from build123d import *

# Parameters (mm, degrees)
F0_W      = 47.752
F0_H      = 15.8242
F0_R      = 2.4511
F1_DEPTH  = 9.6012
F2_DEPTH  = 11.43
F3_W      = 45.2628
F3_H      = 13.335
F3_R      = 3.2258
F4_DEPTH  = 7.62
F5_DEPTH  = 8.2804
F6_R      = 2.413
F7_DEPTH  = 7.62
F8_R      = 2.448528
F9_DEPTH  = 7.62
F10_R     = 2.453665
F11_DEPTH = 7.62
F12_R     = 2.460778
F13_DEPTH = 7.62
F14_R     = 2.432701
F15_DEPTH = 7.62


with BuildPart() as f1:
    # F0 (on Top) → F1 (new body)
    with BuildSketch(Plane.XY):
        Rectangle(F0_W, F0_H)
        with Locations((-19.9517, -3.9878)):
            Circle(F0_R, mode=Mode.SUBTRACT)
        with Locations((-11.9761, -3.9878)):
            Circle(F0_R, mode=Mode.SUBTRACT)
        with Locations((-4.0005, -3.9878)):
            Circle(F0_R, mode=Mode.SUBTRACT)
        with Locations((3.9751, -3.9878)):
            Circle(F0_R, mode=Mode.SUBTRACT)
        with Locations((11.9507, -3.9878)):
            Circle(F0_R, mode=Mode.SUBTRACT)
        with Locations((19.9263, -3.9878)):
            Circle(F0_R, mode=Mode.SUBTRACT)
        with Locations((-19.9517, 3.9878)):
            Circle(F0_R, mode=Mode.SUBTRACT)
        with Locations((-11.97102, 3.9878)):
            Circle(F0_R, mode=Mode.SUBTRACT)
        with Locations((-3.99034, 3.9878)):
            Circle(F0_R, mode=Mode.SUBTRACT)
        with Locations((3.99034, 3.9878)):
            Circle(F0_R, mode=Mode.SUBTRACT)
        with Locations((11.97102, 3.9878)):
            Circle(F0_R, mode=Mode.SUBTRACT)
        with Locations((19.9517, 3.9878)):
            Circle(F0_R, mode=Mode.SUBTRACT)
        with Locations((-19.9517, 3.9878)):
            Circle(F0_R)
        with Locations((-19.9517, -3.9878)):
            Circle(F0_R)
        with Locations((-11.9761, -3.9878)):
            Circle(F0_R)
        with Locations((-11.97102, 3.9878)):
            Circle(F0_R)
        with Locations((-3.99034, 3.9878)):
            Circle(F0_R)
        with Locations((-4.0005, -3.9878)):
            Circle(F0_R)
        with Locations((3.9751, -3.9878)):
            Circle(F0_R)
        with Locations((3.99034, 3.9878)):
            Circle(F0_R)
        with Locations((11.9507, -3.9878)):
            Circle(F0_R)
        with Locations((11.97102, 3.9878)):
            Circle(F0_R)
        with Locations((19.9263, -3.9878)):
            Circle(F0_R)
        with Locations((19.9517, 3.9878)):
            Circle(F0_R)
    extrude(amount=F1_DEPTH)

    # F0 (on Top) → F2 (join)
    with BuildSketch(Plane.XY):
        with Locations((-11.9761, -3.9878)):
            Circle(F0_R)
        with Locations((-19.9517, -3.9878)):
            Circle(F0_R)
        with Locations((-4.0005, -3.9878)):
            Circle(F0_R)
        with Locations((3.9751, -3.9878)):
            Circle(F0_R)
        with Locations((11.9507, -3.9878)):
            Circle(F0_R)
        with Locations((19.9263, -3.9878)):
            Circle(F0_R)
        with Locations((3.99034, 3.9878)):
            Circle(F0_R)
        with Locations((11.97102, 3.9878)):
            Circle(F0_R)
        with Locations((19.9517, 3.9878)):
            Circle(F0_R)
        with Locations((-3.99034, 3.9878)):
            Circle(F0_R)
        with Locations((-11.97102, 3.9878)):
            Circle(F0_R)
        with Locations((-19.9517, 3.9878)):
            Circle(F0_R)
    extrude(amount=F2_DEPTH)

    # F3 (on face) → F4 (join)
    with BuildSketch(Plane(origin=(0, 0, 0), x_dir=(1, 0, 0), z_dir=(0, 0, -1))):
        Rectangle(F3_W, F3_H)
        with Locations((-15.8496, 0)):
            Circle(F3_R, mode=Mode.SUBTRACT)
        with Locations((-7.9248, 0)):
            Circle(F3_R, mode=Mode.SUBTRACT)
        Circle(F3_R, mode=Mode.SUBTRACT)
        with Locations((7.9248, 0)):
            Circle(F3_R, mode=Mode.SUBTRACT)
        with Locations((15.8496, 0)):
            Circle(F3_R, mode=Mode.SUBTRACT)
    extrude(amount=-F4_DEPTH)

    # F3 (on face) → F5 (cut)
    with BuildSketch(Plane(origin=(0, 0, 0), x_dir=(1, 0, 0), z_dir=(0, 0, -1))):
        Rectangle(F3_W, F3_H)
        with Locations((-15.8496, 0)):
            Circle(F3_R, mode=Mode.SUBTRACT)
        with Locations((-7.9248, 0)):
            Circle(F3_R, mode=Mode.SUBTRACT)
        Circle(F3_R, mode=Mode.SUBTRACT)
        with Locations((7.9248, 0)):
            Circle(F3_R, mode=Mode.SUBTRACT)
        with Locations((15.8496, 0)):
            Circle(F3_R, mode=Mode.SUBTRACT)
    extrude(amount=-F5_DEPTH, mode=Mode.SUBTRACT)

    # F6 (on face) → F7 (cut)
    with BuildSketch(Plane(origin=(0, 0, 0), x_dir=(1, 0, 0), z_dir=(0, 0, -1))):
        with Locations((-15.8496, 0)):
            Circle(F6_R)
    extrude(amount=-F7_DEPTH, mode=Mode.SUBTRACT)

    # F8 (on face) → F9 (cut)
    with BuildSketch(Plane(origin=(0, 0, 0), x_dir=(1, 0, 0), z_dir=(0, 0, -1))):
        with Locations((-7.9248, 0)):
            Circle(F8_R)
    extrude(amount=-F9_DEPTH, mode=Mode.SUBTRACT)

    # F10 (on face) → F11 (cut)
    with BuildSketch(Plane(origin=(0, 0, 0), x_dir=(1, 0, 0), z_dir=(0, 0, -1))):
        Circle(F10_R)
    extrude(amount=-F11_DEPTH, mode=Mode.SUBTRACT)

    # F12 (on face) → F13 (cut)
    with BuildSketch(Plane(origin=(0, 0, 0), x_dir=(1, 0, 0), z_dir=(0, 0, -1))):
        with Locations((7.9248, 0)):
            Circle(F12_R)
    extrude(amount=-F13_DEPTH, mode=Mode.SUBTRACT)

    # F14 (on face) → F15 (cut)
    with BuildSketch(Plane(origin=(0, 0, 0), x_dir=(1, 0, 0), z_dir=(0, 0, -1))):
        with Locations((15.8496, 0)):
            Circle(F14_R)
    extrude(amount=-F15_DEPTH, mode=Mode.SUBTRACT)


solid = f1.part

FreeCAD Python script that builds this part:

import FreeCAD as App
import Part
import Sketcher
Q = App.Units.Quantity

doc = App.newDocument("Part")
body = doc.addObject("PartDesign::Body", "Body")

sketch1 = body.newObject("Sketcher::SketchObject", "Sketch")
sketch1.AttachmentSupport = (doc.getObject("XY_Plane"), [""])
sketch1.MapMode = "FlatFace"
sketch1.addGeometry(Part.LineSegment(App.Vector(-24, 8, 0), App.Vector(-24, -8, 0)), False)
sketch1.addGeometry(Part.LineSegment(App.Vector(-24, -8, 0), App.Vector(24, -8, 0)), False)
sketch1.addGeometry(Part.LineSegment(App.Vector(24, -8, 0), App.Vector(24, 8, 0)), False)
sketch1.addGeometry(Part.LineSegment(App.Vector(24, 8, 0), App.Vector(-24, 8, 0)), False)
sketch1.addConstraint(Sketcher.Constraint("Coincident", 0, 2, 1, 1))
sketch1.addConstraint(Sketcher.Constraint("Coincident", 1, 2, 2, 1))
sketch1.addConstraint(Sketcher.Constraint("Coincident", 2, 2, 3, 1))
sketch1.addConstraint(Sketcher.Constraint("Coincident", 3, 2, 0, 1))
sketch1.addConstraint(Sketcher.Constraint("Vertical", 0))
sketch1.addConstraint(Sketcher.Constraint("Horizontal", 1))
sketch1.addConstraint(Sketcher.Constraint("Vertical", 2))
sketch1.addConstraint(Sketcher.Constraint("Horizontal", 3))
sketch1.addConstraint(Sketcher.Constraint("Symmetric", 0, 2, 2, 2, -1, 1))
sketch1.addConstraint(Sketcher.Constraint("DistanceX", 1, 1, 1, 2, Q("1.88 in")))
sketch1.addConstraint(Sketcher.Constraint("DistanceY", 0, 2, 0, 1, Q("0.623 in")))
pad1 = body.newObject("PartDesign::Pad", "Pad")
pad1.Profile = sketch1
pad1.Length = Q("0.378 in")

sketch2 = body.newObject("Sketcher::SketchObject", "Sketch001")
sketch2.AttachmentSupport = (doc.getObject("XY_Plane"), [""])
sketch2.MapMode = "FlatFace"
sketch2.addGeometry(Part.Circle(App.Vector(-12, -4, 0), App.Vector(0, 0, 1), 2.5), False)
sketch2.addGeometry(Part.Circle(App.Vector(-20, -4, 0), App.Vector(0, 0, 1), 2.5), False)
sketch2.addGeometry(Part.Circle(App.Vector(-4, -4, 0), App.Vector(0, 0, 1), 2.5), False)
sketch2.addGeometry(Part.Circle(App.Vector(4, -4, 0), App.Vector(0, 0, 1), 2.5), False)
sketch2.addGeometry(Part.Circle(App.Vector(12, -4, 0), App.Vector(0, 0, 1), 2.5), False)
sketch2.addGeometry(Part.Circle(App.Vector(19.9, -4, 0), App.Vector(0, 0, 1), 2.5), False)
sketch2.addGeometry(Part.Circle(App.Vector(4, 4, 0), App.Vector(0, 0, 1), 2.5), False)
sketch2.addGeometry(Part.Circle(App.Vector(12, 4, 0), App.Vector(0, 0, 1), 2.5), False)
sketch2.addGeometry(Part.Circle(App.Vector(20, 4, 0), App.Vector(0, 0, 1), 2.5), False)
sketch2.addGeometry(Part.Circle(App.Vector(-4, 4, 0), App.Vector(0, 0, 1), 2.5), False)
sketch2.addGeometry(Part.Circle(App.Vector(-12, 4, 0), App.Vector(0, 0, 1), 2.5), False)
sketch2.addGeometry(Part.Circle(App.Vector(-20, 4, 0), App.Vector(0, 0, 1), 2.5), False)
sketch2.addConstraint(Sketcher.Constraint("Equal", 0, 1))
sketch2.addConstraint(Sketcher.Constraint("Equal", 1, 2))
sketch2.addConstraint(Sketcher.Constraint("Equal", 2, 3))
sketch2.addConstraint(Sketcher.Constraint("Equal", 3, 4))
sketch2.addConstraint(Sketcher.Constraint("Equal", 4, 5))
sketch2.addConstraint(Sketcher.Constraint("Equal", 5, 6))
sketch2.addConstraint(Sketcher.Constraint("Equal", 6, 7))
sketch2.addConstraint(Sketcher.Constraint("Equal", 7, 8))
sketch2.addConstraint(Sketcher.Constraint("Equal", 8, 9))
sketch2.addConstraint(Sketcher.Constraint("Equal", 9, 10))
sketch2.addConstraint(Sketcher.Constraint("Equal", 10, 11))
sketch2.addConstraint(Sketcher.Constraint("Symmetric", 1, 3, 8, 3, -1, 1))
sketch2.addConstraint(Sketcher.Constraint("Symmetric", 6, 3, 9, 3, -2))
sketch2.addConstraint(Sketcher.Constraint("Symmetric", 7, 3, 10, 3, -2))
sketch2.addConstraint(Sketcher.Constraint("Symmetric", 8, 3, 11, 3, -2))
sketch2.addConstraint(Sketcher.Constraint("Horizontal", 0, 3, 1, 3))
sketch2.addConstraint(Sketcher.Constraint("Horizontal", 1, 3, 2, 3))
sketch2.addConstraint(Sketcher.Constraint("Horizontal", 2, 3, 3, 3))
sketch2.addConstraint(Sketcher.Constraint("Horizontal", 3, 3, 4, 3))
sketch2.addConstraint(Sketcher.Constraint("Horizontal", 4, 3, 5, 3))
sketch2.addConstraint(Sketcher.Constraint("Horizontal", 6, 3, 7, 3))
sketch2.addConstraint(Sketcher.Constraint("Horizontal", 7, 3, 8, 3))
sketch2.addConstraint(Sketcher.Constraint("Diameter", 0, Q("0.193 in")))
sketch2.addConstraint(Sketcher.Constraint("DistanceX", 1, 3, 5, 3, Q("1.57 in")))
sketch2.addConstraint(Sketcher.Constraint("DistanceY", 0, 3, -1, 1, Q("0.157 in")))
sketch2.addConstraint(Sketcher.Constraint("DistanceX", 1, 3, 0, 3, Q("0.314 in")))
sketch2.addConstraint(Sketcher.Constraint("DistanceX", 0, 3, 2, 3, Q("0.314 in")))
sketch2.addConstraint(Sketcher.Constraint("DistanceX", 2, 3, 3, 3, Q("0.314 in")))
sketch2.addConstraint(Sketcher.Constraint("DistanceX", 3, 3, 4, 3, Q("0.314 in")))
sketch2.addConstraint(Sketcher.Constraint("DistanceX", 5, 3, 8, 3, Q("0.001 in")))
sketch2.addConstraint(Sketcher.Constraint("DistanceX", -1, 1, 6, 3, Q("0.1571 in")))
sketch2.addConstraint(Sketcher.Constraint("DistanceX", -1, 1, 7, 3, Q("0.4713 in")))
pad2 = body.newObject("PartDesign::Pad", "Pad001")
pad2.Profile = sketch2
pad2.Length = Q("0.45 in")

sketch3 = body.newObject("Sketcher::SketchObject", "Sketch002")
sketch3.AttachmentSupport = (doc.getObject("XY_Plane"), [""])
sketch3.MapMode = "FlatFace"
sketch3.addGeometry(Part.LineSegment(App.Vector(-22.6, -6.7, 0), App.Vector(-22.6, 6.7, 0)), False)
sketch3.addGeometry(Part.LineSegment(App.Vector(-22.6, 6.7, 0), App.Vector(22.6, 6.7, 0)), False)
sketch3.addGeometry(Part.LineSegment(App.Vector(22.6, 6.7, 0), App.Vector(22.6, -6.7, 0)), False)
sketch3.addGeometry(Part.LineSegment(App.Vector(22.6, -6.7, 0), App.Vector(-22.6, -6.7, 0)), False)
sketch3.addGeometry(Part.Circle(App.Vector(-15.8, 0, 0), App.Vector(0, 0, 1), 3.2), False)
sketch3.addGeometry(Part.Circle(App.Vector(-7.9, 0, 0), App.Vector(0, 0, 1), 3.2), False)
sketch3.addGeometry(Part.Circle(App.Vector(0, 0, 0), App.Vector(0, 0, 1), 3.2), False)
sketch3.addGeometry(Part.Circle(App.Vector(7.9, 0, 0), App.Vector(0, 0, 1), 3.2), False)
sketch3.addGeometry(Part.Circle(App.Vector(15.8, 0, 0), App.Vector(0, 0, 1), 3.2), False)
sketch3.addConstraint(Sketcher.Constraint("Coincident", 0, 2, 1, 1))
sketch3.addConstraint(Sketcher.Constraint("Coincident", 1, 2, 2, 1))
sketch3.addConstraint(Sketcher.Constraint("Coincident", 2, 2, 3, 1))
sketch3.addConstraint(Sketcher.Constraint("Coincident", 3, 2, 0, 1))
sketch3.addConstraint(Sketcher.Constraint("Vertical", 0))
sketch3.addConstraint(Sketcher.Constraint("Horizontal", 1))
sketch3.addConstraint(Sketcher.Constraint("Vertical", 2))
sketch3.addConstraint(Sketcher.Constraint("Horizontal", 3))
sketch3.addConstraint(Sketcher.Constraint("Coincident", 6, 3, -1, 1))
sketch3.addConstraint(Sketcher.Constraint("Equal", 4, 5))
sketch3.addConstraint(Sketcher.Constraint("Equal", 5, 6))
sketch3.addConstraint(Sketcher.Constraint("Equal", 6, 7))
sketch3.addConstraint(Sketcher.Constraint("Equal", 7, 8))
sketch3.addConstraint(Sketcher.Constraint("Symmetric", 5, 3, 7, 3, -1, 1))
sketch3.addConstraint(Sketcher.Constraint("Symmetric", 4, 3, 8, 3, -1, 1))
sketch3.addConstraint(Sketcher.Constraint("Symmetric", 0, 2, 2, 2, -1, 1))
sketch3.addConstraint(Sketcher.Constraint("PointOnObject", 4, 3, -1))
sketch3.addConstraint(Sketcher.Constraint("PointOnObject", 5, 3, -1))
sketch3.addConstraint(Sketcher.Constraint("Diameter", 4, Q("0.254 in")))
sketch3.addConstraint(Sketcher.Constraint("DistanceX", 1, 1, 1, 2, Q("1.782 in")))
sketch3.addConstraint(Sketcher.Constraint("DistanceY", 0, 1, 0, 2, Q("0.525 in")))
sketch3.addConstraint(Sketcher.Constraint("DistanceX", 4, 3, -1, 1, Q("0.624 in")))
sketch3.addConstraint(Sketcher.Constraint("DistanceX", 5, 3, -1, 1, Q("0.312 in")))
pad3 = body.newObject("PartDesign::Pad", "Pad002")
pad3.Profile = sketch3
pad3.Length = Q("0.3 in")

sketch4 = body.newObject("Sketcher::SketchObject", "Sketch003")
sketch4.AttachmentSupport = (doc.getObject("XY_Plane"), [""])
sketch4.MapMode = "FlatFace"
sketch4.addGeometry(Part.LineSegment(App.Vector(-22.6, -6.7, 0), App.Vector(-22.6, 6.7, 0)), False)
sketch4.addGeometry(Part.LineSegment(App.Vector(-22.6, 6.7, 0), App.Vector(22.6, 6.7, 0)), False)
sketch4.addGeometry(Part.LineSegment(App.Vector(22.6, 6.7, 0), App.Vector(22.6, -6.7, 0)), False)
sketch4.addGeometry(Part.LineSegment(App.Vector(22.6, -6.7, 0), App.Vector(-22.6, -6.7, 0)), False)
sketch4.addGeometry(Part.Circle(App.Vector(-15.8, 0, 0), App.Vector(0, 0, 1), 3.2), False)
sketch4.addGeometry(Part.Circle(App.Vector(-7.9, 0, 0), App.Vector(0, 0, 1), 3.2), False)
sketch4.addGeometry(Part.Circle(App.Vector(0, 0, 0), App.Vector(0, 0, 1), 3.2), False)
sketch4.addGeometry(Part.Circle(App.Vector(7.9, 0, 0), App.Vector(0, 0, 1), 3.2), False)
sketch4.addGeometry(Part.Circle(App.Vector(15.8, 0, 0), App.Vector(0, 0, 1), 3.2), False)
sketch4.addConstraint(Sketcher.Constraint("Coincident", 0, 2, 1, 1))
sketch4.addConstraint(Sketcher.Constraint("Coincident", 1, 2, 2, 1))
sketch4.addConstraint(Sketcher.Constraint("Coincident", 2, 2, 3, 1))
sketch4.addConstraint(Sketcher.Constraint("Coincident", 3, 2, 0, 1))
sketch4.addConstraint(Sketcher.Constraint("Vertical", 0))
sketch4.addConstraint(Sketcher.Constraint("Horizontal", 1))
sketch4.addConstraint(Sketcher.Constraint("Vertical", 2))
sketch4.addConstraint(Sketcher.Constraint("Horizontal", 3))
sketch4.addConstraint(Sketcher.Constraint("Coincident", 6, 3, -1, 1))
sketch4.addConstraint(Sketcher.Constraint("Equal", 4, 5))
sketch4.addConstraint(Sketcher.Constraint("Equal", 5, 6))
sketch4.addConstraint(Sketcher.Constraint("Equal", 6, 7))
sketch4.addConstraint(Sketcher.Constraint("Equal", 7, 8))
sketch4.addConstraint(Sketcher.Constraint("Symmetric", 5, 3, 7, 3, -1, 1))
sketch4.addConstraint(Sketcher.Constraint("Symmetric", 4, 3, 8, 3, -1, 1))
sketch4.addConstraint(Sketcher.Constraint("Symmetric", 0, 2, 2, 2, -1, 1))
sketch4.addConstraint(Sketcher.Constraint("PointOnObject", 4, 3, -1))
sketch4.addConstraint(Sketcher.Constraint("PointOnObject", 5, 3, -1))
sketch4.addConstraint(Sketcher.Constraint("Diameter", 4, Q("0.254 in")))
sketch4.addConstraint(Sketcher.Constraint("DistanceX", 1, 1, 1, 2, Q("1.782 in")))
sketch4.addConstraint(Sketcher.Constraint("DistanceY", 0, 1, 0, 2, Q("0.525 in")))
sketch4.addConstraint(Sketcher.Constraint("DistanceX", 4, 3, -1, 1, Q("0.624 in")))
sketch4.addConstraint(Sketcher.Constraint("DistanceX", 5, 3, -1, 1, Q("0.312 in")))
pocket1 = body.newObject("PartDesign::Pocket", "Pocket")
pocket1.Profile = sketch4
pocket1.Length = Q("0.326 in")
pocket1.Reversed = True

sketch5 = body.newObject("Sketcher::SketchObject", "Sketch004")
sketch5.AttachmentSupport = (doc.getObject("XY_Plane"), [""])
sketch5.MapMode = "FlatFace"
sketch5.addGeometry(Part.Circle(App.Vector(-15.8, 0, 0), App.Vector(0, 0, 1), 2.4), False)
sketch5.addConstraint(Sketcher.Constraint("PointOnObject", 0, 3, -1))
sketch5.addConstraint(Sketcher.Constraint("Diameter", 0, Q("0.19 in")))
sketch5.addConstraint(Sketcher.Constraint("DistanceX", 0, 3, -1, 1, Q("0.624 in")))
pocket2 = body.newObject("PartDesign::Pocket", "Pocket001")
pocket2.Profile = sketch5
pocket2.Length = Q("0.3 in")
pocket2.Reversed = True

sketch6 = body.newObject("Sketcher::SketchObject", "Sketch005")
sketch6.AttachmentSupport = (doc.getObject("XY_Plane"), [""])
sketch6.MapMode = "FlatFace"
sketch6.addGeometry(Part.Circle(App.Vector(-7.9, 0, 0), App.Vector(0, 0, 1), 2.4), False)
sketch6.addConstraint(Sketcher.Constraint("PointOnObject", 0, 3, -1))
sketch6.addConstraint(Sketcher.Constraint("DistanceX", 0, 3, -1, 1, Q("0.312 in")))
sketch6.addConstraint(Sketcher.Constraint("Diameter", 0, 4.897056))
pocket3 = body.newObject("PartDesign::Pocket", "Pocket002")
pocket3.Profile = sketch6
pocket3.Length = Q("0.3 in")
pocket3.Reversed = True

sketch7 = body.newObject("Sketcher::SketchObject", "Sketch006")
sketch7.AttachmentSupport = (doc.getObject("XY_Plane"), [""])
sketch7.MapMode = "FlatFace"
sketch7.addGeometry(Part.Circle(App.Vector(0, 0, 0), App.Vector(0, 0, 1), 2.5), False)
sketch7.addConstraint(Sketcher.Constraint("Coincident", 0, 3, -1, 1))
sketch7.addConstraint(Sketcher.Constraint("Diameter", 0, 4.90733))
pocket4 = body.newObject("PartDesign::Pocket", "Pocket003")
pocket4.Profile = sketch7
pocket4.Length = Q("0.3 in")
pocket4.Reversed = True

sketch8 = body.newObject("Sketcher::SketchObject", "Sketch007")
sketch8.AttachmentSupport = (doc.getObject("XY_Plane"), [""])
sketch8.MapMode = "FlatFace"
sketch8.addGeometry(Part.Circle(App.Vector(7.9, 0, 0), App.Vector(0, 0, 1), 2.5), False)
sketch8.addConstraint(Sketcher.Constraint("PointOnObject", 0, 3, -1))
sketch8.addConstraint(Sketcher.Constraint("DistanceX", -1, 1, 0, 3, Q("0.312 in")))
sketch8.addConstraint(Sketcher.Constraint("Diameter", 0, 4.921556))
pocket5 = body.newObject("PartDesign::Pocket", "Pocket004")
pocket5.Profile = sketch8
pocket5.Length = Q("0.3 in")
pocket5.Reversed = True

sketch9 = body.newObject("Sketcher::SketchObject", "Sketch008")
sketch9.AttachmentSupport = (doc.getObject("XY_Plane"), [""])
sketch9.MapMode = "FlatFace"
sketch9.addGeometry(Part.Circle(App.Vector(15.8, 0, 0), App.Vector(0, 0, 1), 2.4), False)
sketch9.addConstraint(Sketcher.Constraint("PointOnObject", 0, 3, -1))
sketch9.addConstraint(Sketcher.Constraint("Diameter", 0, 4.865402))
sketch9.addConstraint(Sketcher.Constraint("DistanceX", -1, 1, 0, 3, Q("0.624 in")))
pocket6 = body.newObject("PartDesign::Pocket", "Pocket005")
pocket6.Profile = sketch9
pocket6.Length = Q("0.3 in")
pocket6.Reversed = True

doc.recompute()
